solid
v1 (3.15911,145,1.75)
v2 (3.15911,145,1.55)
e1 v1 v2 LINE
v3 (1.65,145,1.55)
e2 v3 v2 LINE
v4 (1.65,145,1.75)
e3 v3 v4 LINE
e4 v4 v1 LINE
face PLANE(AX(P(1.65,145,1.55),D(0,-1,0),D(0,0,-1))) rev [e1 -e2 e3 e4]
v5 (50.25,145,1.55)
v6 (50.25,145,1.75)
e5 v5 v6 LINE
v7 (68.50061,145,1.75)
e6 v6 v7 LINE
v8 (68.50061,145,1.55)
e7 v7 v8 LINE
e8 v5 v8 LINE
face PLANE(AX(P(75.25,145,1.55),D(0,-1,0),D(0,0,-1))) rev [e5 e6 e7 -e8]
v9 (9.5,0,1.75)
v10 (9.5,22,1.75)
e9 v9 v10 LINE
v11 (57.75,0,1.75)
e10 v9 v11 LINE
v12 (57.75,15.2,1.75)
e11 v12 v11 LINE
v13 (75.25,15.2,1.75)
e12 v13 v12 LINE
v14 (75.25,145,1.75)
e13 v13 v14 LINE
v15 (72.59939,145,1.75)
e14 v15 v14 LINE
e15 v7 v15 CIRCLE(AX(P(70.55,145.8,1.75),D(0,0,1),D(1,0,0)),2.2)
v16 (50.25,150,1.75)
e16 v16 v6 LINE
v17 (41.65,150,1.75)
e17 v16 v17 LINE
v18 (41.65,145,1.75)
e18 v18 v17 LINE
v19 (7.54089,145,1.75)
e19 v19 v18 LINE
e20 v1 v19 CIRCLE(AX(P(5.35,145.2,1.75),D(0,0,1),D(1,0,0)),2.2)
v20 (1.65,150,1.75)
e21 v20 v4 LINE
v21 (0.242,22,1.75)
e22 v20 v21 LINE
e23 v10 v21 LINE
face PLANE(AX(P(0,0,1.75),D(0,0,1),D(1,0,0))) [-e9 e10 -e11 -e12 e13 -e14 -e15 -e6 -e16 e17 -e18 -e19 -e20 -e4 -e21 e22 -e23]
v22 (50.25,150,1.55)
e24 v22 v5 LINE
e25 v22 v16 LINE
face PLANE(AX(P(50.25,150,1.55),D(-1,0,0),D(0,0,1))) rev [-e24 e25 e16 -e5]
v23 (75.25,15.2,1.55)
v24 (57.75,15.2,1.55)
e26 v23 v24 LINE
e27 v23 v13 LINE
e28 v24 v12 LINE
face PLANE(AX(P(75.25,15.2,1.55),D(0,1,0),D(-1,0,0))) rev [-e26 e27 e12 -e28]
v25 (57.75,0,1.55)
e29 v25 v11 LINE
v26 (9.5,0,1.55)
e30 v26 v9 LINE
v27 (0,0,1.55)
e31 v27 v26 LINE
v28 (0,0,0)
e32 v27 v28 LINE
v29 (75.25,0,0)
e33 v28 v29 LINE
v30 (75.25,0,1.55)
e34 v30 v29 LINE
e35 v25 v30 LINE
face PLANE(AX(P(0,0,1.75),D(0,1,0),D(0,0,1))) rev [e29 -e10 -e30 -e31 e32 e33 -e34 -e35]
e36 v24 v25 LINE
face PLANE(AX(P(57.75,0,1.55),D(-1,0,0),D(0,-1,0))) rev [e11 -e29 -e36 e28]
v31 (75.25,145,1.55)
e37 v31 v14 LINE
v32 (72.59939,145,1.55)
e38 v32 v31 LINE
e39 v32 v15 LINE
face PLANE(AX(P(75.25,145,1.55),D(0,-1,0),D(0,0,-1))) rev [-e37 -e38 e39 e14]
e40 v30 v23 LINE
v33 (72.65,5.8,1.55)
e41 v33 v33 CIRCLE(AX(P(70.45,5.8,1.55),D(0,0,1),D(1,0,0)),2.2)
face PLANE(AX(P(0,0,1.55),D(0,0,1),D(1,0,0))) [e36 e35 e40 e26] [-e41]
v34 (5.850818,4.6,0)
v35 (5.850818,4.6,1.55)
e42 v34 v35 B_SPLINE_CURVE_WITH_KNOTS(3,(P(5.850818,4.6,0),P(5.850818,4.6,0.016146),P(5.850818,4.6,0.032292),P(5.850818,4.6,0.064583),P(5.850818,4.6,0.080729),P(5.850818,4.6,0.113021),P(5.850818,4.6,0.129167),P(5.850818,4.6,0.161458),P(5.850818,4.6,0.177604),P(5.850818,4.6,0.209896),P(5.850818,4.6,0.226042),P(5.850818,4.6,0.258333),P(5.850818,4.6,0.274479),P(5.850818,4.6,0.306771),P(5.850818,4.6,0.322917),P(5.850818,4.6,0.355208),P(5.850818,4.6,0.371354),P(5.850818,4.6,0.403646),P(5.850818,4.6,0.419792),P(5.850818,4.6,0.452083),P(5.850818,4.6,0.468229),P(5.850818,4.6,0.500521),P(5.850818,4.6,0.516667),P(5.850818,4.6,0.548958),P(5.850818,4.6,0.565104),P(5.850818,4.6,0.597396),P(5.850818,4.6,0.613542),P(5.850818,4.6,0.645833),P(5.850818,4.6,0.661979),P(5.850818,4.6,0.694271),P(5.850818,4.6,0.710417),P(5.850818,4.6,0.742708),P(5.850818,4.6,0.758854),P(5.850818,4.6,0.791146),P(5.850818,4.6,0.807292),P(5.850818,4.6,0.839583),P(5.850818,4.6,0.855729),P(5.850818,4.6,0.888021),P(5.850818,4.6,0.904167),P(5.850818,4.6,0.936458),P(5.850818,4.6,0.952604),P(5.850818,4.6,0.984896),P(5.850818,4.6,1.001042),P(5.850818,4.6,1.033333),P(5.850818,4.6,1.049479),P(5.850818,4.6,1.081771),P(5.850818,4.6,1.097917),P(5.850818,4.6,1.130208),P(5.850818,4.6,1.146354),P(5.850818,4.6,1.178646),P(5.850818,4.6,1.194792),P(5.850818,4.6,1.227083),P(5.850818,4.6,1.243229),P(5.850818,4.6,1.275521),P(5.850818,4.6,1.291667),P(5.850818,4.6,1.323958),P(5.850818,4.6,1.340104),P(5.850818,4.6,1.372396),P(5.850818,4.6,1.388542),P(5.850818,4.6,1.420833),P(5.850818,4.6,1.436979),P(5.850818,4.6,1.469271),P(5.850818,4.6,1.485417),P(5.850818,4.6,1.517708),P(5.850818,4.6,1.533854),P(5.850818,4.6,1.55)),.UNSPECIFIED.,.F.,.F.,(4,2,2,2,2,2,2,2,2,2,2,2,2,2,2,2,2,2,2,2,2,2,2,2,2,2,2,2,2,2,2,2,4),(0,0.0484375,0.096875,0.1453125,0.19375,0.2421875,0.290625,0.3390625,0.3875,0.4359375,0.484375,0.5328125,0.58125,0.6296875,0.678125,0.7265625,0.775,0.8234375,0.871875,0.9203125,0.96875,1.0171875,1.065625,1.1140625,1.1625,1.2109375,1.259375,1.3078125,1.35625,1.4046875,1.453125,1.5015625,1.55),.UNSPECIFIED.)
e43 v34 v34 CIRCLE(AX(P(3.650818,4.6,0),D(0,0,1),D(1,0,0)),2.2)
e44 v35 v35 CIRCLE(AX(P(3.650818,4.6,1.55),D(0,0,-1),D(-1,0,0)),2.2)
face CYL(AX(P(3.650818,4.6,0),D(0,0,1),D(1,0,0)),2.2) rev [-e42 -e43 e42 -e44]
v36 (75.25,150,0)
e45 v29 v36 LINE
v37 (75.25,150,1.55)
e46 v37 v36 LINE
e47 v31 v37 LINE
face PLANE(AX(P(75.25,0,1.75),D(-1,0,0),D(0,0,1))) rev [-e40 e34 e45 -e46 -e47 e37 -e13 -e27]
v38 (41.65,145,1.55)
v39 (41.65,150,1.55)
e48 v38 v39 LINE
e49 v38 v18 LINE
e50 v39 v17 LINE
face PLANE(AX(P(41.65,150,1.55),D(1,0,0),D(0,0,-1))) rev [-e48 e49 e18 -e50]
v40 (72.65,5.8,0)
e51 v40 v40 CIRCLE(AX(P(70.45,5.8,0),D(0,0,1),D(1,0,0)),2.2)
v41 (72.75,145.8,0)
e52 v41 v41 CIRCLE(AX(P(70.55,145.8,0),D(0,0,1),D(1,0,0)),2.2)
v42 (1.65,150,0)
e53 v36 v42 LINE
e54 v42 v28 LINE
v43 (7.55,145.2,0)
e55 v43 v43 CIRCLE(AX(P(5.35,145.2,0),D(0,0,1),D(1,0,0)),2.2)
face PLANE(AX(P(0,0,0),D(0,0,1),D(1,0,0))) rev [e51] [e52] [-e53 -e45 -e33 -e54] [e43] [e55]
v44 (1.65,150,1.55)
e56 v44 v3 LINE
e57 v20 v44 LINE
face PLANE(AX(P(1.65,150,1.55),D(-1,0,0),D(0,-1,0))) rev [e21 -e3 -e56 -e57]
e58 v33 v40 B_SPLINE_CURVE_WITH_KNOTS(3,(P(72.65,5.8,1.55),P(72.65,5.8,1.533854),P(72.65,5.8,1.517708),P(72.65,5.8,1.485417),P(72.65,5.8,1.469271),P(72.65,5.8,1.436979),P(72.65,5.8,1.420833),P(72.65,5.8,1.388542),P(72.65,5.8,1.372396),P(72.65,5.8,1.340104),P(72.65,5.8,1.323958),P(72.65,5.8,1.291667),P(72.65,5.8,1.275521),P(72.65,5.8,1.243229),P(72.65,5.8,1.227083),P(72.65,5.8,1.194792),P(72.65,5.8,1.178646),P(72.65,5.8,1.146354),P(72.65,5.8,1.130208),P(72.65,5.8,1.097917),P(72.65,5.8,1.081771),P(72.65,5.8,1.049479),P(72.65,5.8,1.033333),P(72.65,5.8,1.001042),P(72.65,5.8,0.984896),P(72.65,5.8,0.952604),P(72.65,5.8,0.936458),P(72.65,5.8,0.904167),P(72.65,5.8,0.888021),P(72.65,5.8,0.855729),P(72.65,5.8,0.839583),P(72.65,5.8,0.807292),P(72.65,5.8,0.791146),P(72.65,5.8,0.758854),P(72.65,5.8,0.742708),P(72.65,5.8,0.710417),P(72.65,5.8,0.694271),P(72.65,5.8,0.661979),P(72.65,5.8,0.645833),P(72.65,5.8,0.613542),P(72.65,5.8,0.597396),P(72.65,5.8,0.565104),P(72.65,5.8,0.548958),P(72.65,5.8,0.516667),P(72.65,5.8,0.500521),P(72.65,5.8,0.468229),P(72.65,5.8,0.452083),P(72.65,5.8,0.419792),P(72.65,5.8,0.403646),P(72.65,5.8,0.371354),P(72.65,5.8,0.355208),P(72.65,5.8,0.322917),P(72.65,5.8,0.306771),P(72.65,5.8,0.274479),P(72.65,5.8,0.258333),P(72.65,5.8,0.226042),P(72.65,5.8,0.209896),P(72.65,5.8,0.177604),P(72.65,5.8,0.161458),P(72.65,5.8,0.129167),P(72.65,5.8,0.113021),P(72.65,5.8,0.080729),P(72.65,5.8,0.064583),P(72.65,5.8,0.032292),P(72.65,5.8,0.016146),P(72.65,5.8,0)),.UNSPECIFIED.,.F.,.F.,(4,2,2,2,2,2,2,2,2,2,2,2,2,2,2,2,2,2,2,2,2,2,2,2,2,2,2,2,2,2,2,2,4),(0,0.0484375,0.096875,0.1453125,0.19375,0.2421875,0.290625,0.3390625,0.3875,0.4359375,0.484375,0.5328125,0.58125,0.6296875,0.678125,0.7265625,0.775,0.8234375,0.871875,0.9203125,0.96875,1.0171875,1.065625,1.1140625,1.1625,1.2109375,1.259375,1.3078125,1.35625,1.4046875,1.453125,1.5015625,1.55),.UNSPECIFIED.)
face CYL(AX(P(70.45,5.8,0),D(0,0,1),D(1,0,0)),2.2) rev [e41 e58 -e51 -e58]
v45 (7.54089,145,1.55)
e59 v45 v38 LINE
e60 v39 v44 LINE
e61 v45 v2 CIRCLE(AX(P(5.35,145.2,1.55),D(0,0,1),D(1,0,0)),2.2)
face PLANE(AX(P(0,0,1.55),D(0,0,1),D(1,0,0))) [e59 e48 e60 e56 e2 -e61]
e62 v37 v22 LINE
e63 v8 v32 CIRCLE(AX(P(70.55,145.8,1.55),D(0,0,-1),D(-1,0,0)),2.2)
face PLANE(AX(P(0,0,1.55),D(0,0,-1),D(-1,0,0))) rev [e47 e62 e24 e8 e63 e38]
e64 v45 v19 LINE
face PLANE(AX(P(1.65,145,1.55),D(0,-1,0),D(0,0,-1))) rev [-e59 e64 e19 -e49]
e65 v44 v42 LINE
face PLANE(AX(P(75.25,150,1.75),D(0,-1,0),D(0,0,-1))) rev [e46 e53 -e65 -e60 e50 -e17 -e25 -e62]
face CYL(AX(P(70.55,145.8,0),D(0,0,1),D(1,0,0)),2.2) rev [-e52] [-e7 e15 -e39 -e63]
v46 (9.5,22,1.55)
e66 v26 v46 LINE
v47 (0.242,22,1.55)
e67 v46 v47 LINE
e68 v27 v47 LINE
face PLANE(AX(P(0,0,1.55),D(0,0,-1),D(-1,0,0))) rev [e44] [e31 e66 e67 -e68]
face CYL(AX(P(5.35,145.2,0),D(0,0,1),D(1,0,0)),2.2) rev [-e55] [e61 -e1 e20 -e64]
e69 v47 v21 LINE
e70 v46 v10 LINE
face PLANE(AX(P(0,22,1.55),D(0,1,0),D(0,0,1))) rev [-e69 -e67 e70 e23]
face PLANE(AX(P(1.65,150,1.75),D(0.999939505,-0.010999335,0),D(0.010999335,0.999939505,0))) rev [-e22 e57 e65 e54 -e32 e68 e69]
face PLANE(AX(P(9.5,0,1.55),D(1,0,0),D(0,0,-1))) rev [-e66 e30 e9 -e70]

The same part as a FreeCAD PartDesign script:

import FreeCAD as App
import Part
import Sketcher

V = App.Vector
Q = App.Units.Quantity


def add_polygon(sketch, points):
    """Adds a closed chain of lines whose ends are joined by coincident constraints."""
    first, n = sketch.GeometryCount, len(points)
    for a, b in zip(points, points[1:] + points[:1]):
        sketch.addGeometry(Part.LineSegment(App.Vector(*a, 0), App.Vector(*b, 0)), False)
    for i in range(n):
        sketch.addConstraint(Sketcher.Constraint("Coincident", first + i, 2, first + (i + 1) % n, 1))

doc = App.newDocument("Part")
params = doc.addObject("Spreadsheet::Sheet", "Params")
for row, (alias, value) in enumerate([
    ("sketch1_height", "150 mm"),
    ("sketch1_width", "73.6 mm"),
    ("sketch1_width2", "75.25 mm"),
    ("pad1_length", "1.75 mm"),
    ("sketch2_width", "40 mm"),
    ("sketch2_width2", "25 mm"),
    ("sketch2_height", "22 mm"),
    ("sketch2_height2", "5 mm"),
    ("sketch2_width3", "17.5 mm"),
    ("pocket1_length", "0.2 mm"),
    ("sketch3_diameter", "4.4 mm"),
], start=1):
    params.set(f"A{row}", alias)
    params.set(f"B{row}", "=" + value)
    params.setAlias(f"B{row}", alias)

body = doc.addObject("PartDesign::Body", "Body")

# Sketch on XY plane
sketch1 = body.newObject("Sketcher::SketchObject", "Sketch")
sketch1.AttachmentSupport = (doc.getObject("XY_Plane"), [""])
sketch1.MapMode = "FlatFace"
add_polygon(sketch1, [(0, 0), (75, 0), (75, 150), (2, 150)])  # lines 0-3
sketch1.addConstraint(Sketcher.Constraint("Horizontal", 0))
sketch1.addConstraint(Sketcher.Constraint("Vertical", 1))
sketch1.addConstraint(Sketcher.Constraint("Horizontal", 2))
sketch1.addConstraint(Sketcher.Constraint("Coincident", 3, 2, -1, 1))
sketch1.addConstraint(Sketcher.Constraint("DistanceY", 1, 1, 1, 2, Q("150 mm")))
sketch1.addConstraint(Sketcher.Constraint("DistanceX", 2, 2, 2, 1, Q("73.6 mm")))
sketch1.addConstraint(Sketcher.Constraint("DistanceX", 0, 1, 0, 2, Q("75.25 mm")))
sketch1.setExpression("Constraints[8]", "Params.sketch1_height")
sketch1.setExpression("Constraints[9]", "Params.sketch1_width")
sketch1.setExpression("Constraints[10]", "Params.sketch1_width2")
pad1 = body.newObject("PartDesign::Pad", "Pad")
pad1.Profile = sketch1
pad1.setExpression("Length", "Params.pad1_length")

# Sketch on XY plane
sketch2 = body.newObject("Sketcher::SketchObject", "Sketch001")
sketch2.AttachmentSupport = (doc.getObject("XY_Plane"), [""])
sketch2.MapMode = "FlatFace"
sketch2.AttachmentOffset = App.Placement(V(0, 0, 1.75), App.Rotation())
add_polygon(sketch2, [(58, 15), (58, 0), (75, 0), (75, 15)])  # lines 0-3
add_polygon(sketch2, [(0, 22), (0, 0), (10, 0), (10, 22)])  # lines 4-7
add_polygon(sketch2, [(2, 150), (2, 145), (42, 145), (42, 150)])  # lines 8-11
add_polygon(sketch2, [(50, 150), (50, 145), (75, 145), (75, 150)])  # lines 12-15
sketch2.addConstraint(Sketcher.Constraint("Vertical", 0))
sketch2.addConstraint(Sketcher.Constraint("Horizontal", 1))
sketch2.addConstraint(Sketcher.Constraint("Vertical", 2))
sketch2.addConstraint(Sketcher.Constraint("Horizontal", 3))
sketch2.addConstraint(Sketcher.Constraint("Vertical", 4))
sketch2.addConstraint(Sketcher.Constraint("Horizontal", 5))
sketch2.addConstraint(Sketcher.Constraint("Vertical", 6))
sketch2.addConstraint(Sketcher.Constraint("Horizontal", 7))
sketch2.addConstraint(Sketcher.Constraint("Vertical", 8))
sketch2.addConstraint(Sketcher.Constraint("Horizontal", 9))
sketch2.addConstraint(Sketcher.Constraint("Vertical", 10))
sketch2.addConstraint(Sketcher.Constraint("Horizontal", 11))
sketch2.addConstraint(Sketcher.Constraint("Vertical", 12))
sketch2.addConstraint(Sketcher.Constraint("Horizontal", 13))
sketch2.addConstraint(Sketcher.Constraint("Vertical", 14))
sketch2.addConstraint(Sketcher.Constraint("Horizontal", 15))
sketch2.addConstraint(Sketcher.Constraint("Coincident", 4, 2, -1, 1))
sketch2.addConstraint(Sketcher.Constraint("PointOnObject", 0, 2, -1))
sketch2.addConstraint(Sketcher.Constraint("Horizontal", 9, 2, 12, 2))
sketch2.addConstraint(Sketcher.Constraint("Horizontal", 11, 2, 14, 2))
sketch2.addConstraint(Sketcher.Constraint("Vertical", 2, 2, 13, 2))
sketch2.addConstraint(Sketcher.Constraint("DistanceX", 9, 1, 9, 2, Q("40 mm")))
sketch2.addConstraint(Sketcher.Constraint("DistanceX", 13, 1, 13, 2, Q("25 mm")))
sketch2.addConstraint(Sketcher.Constraint("DistanceY", 4, 2, 4, 1, Q("22 mm")))
sketch2.addConstraint(Sketcher.Constraint("DistanceY", 8, 2, 8, 1, Q("5 mm")))
sketch2.addConstraint(Sketcher.Constraint("DistanceX", 1, 1, 1, 2, Q("17.5 mm")))
sketch2.addConstraint(Sketcher.Constraint("DistanceX", 5, 1, 5, 2, Q("9.5 mm")))
sketch2.addConstraint(Sketcher.Constraint("DistanceY", 0, 2, 0, 1, Q("15.2 mm")))
sketch2.addConstraint(Sketcher.Constraint("DistanceY", -1, 1, 8, 2, Q("145 mm")))
sketch2.addConstraint(Sketcher.Constraint("DistanceX", 8, 2, 3, 2, Q("56.1 mm")))
sketch2.addConstraint(Sketcher.Constraint("DistanceX", -1, 1, 0, 2, Q("57.75 mm")))
sketch2.setExpression("Constraints[37]", "Params.sketch2_width")
sketch2.setExpression("Constraints[38]", "Params.sketch2_width2")
sketch2.setExpression("Constraints[39]", "Params.sketch2_height")
sketch2.setExpression("Constraints[40]", "Params.sketch2_height2")
sketch2.setExpression("Constraints[41]", "Params.sketch2_width3")
pocket1 = body.newObject("PartDesign::Pocket", "Pocket")
pocket1.Profile = sketch2
pocket1.setExpression("Length", "Params.pocket1_length")

# Sketch on XY plane
sketch3 = body.newObject("Sketcher::SketchObject", "Sketch002")
sketch3.AttachmentSupport = (doc.getObject("XY_Plane"), [""])
sketch3.MapMode = "FlatFace"
sketch3.AttachmentOffset = App.Placement(V(0, 0, 1.55), App.Rotation())
sketch3.addGeometry(Part.Circle(V(3.7, 4.6, 0), V(0, 0, 1), 2.2), False)
sketch3.addGeometry(Part.Circle(V(70.5, 5.8, 0), V(0, 0, 1), 2.2), False)
sketch3.addGeometry(Part.Circle(V(5.3, 145.2, 0), V(0, 0, 1), 2.2), False)
sketch3.addGeometry(Part.Circle(V(70.5, 145.8, 0), V(0, 0, 1), 2.2), False)
sketch3.addConstraint(Sketcher.Constraint("Equal", 0, 1))
sketch3.addConstraint(Sketcher.Constraint("Equal", 1, 2))
sketch3.addConstraint(Sketcher.Constraint("Equal", 2, 3))
sketch3.addConstraint(Sketcher.Constraint("Diameter", 0, Q("4.4 mm")))
sketch3.addConstraint(Sketcher.Constraint("DistanceY", 1, 3, 3, 3, Q("140 mm")))
sketch3.addConstraint(Sketcher.Constraint("DistanceY", -1, 1, 0, 3, Q("4.6 mm")))
sketch3.addConstraint(Sketcher.Constraint("DistanceY", -1, 1, 1, 3, Q("5.8 mm")))
sketch3.addConstraint(Sketcher.Constraint("DistanceY", -1, 1, 2, 3, Q("145.2 mm")))
sketch3.addConstraint(Sketcher.Constraint("DistanceX", 2, 3, 1, 3, Q("65.1 mm")))
sketch3.addConstraint(Sketcher.Constraint("DistanceX", 2, 3, 3, 3, Q("65.2 mm")))
sketch3.addConstraint(Sketcher.Constraint("DistanceX", -1, 1, 1, 3, Q("70.45 mm")))
sketch3.addConstraint(Sketcher.Constraint("DistanceX", -1, 1, 0, 3, Q("3.650818 mm")))
sketch3.setExpression("Constraints[3]", "Params.sketch3_diameter")
pocket2 = body.newObject("PartDesign::Pocket", "Pocket001")
pocket2.Profile = sketch3
pocket2.Type = "ThroughAll"
pocket2.Midplane = True

doc.recompute()
